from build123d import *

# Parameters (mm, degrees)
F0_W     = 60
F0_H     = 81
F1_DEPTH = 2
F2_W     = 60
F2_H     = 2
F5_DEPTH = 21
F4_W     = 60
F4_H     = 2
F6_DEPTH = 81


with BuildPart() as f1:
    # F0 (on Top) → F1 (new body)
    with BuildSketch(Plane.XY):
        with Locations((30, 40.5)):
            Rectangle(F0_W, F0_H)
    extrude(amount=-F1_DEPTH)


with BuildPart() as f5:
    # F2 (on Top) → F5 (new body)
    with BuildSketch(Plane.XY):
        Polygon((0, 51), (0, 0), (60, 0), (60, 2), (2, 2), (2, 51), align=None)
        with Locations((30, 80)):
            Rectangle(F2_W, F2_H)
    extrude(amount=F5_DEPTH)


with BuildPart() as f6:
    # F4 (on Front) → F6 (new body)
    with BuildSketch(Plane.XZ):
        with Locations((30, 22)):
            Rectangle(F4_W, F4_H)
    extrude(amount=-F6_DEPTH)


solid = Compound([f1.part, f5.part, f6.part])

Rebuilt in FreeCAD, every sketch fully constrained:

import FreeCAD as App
import Part
import Sketcher
from FreeCAD import Vector


def add_polygon(sketch, points):
    """Adds a closed chain of lines whose ends are joined by coincident constraints."""
    first, n = sketch.GeometryCount, len(points)
    for a, b in zip(points, points[1:] + points[:1]):
        sketch.addGeometry(Part.LineSegment(App.Vector(*a, 0), App.Vector(*b, 0)), False)
    for i in range(n):
        sketch.addConstraint(Sketcher.Constraint("Coincident", first + i, 2, first + (i + 1) % n, 1))

doc = App.newDocument("Part")
body = doc.addObject("PartDesign::Body", "Body")

sketch1 = body.newObject("Sketcher::SketchObject", "Sketch")
sketch1.AttachmentSupport = (doc.getObject("XY_Plane"), [""])
sketch1.MapMode = "FlatFace"
add_polygon(sketch1, [(0, 81), (0, 0), (60, 0), (60, 81)])
sketch1.addConstraint([
    Sketcher.Constraint("Vertical", 0),
    Sketcher.Constraint("Horizontal", 1),
    Sketcher.Constraint("Vertical", 2),
    Sketcher.Constraint("Horizontal", 3),
    Sketcher.Constraint("Coincident", 0, 2, -1, 1),
    Sketcher.Constraint("DistanceX", 1, 1, 1, 2, 60.0),
    Sketcher.Constraint("DistanceY", 0, 2, 0, 1, 81.0),
])
pad1 = body.newObject("PartDesign::Pad", "Pad")
pad1.Profile = sketch1
pad1.Length = 2
pad1.Reversed = True
body2 = doc.addObject("PartDesign::Body", "Body001")
body2.AllowCompound = True

sketch2 = body2.newObject("Sketcher::SketchObject", "Sketch001")
sketch2.AttachmentSupport = (doc.getObject("XY_Plane001"), [""])
sketch2.MapMode = "FlatFace"
add_polygon(sketch2, [(0, 51), (0, 0), (60, 0), (60, 2), (2, 2), (2, 51)])
add_polygon(sketch2, [(0, 81), (0, 79), (60, 79), (60, 81)])
sketch2.addConstraint([
    Sketcher.Constraint("Vertical", 0),
    Sketcher.Constraint("Horizontal", 1),
    Sketcher.Constraint("Vertical", 2),
    Sketcher.Constraint("Horizontal", 3),
    Sketcher.Constraint("Vertical", 4),
    Sketcher.Constraint("Horizontal", 5),
    Sketcher.Constraint("Vertical", 6),
    Sketcher.Constraint("Horizontal", 7),
    Sketcher.Constraint("Vertical", 8),
    Sketcher.Constraint("Horizontal", 9),
    Sketcher.Constraint("Coincident", 0, 2, -1, 1),
    Sketcher.Constraint("PointOnObject", 6, 2, -2),
    Sketcher.Constraint("Vertical", 2, 2, 7, 2),
    Sketcher.Constraint("Equal", 5, 2),
    Sketcher.Constraint("Equal", 2, 6),
    Sketcher.Constraint("DistanceX", 1, 1, 1, 2, 60.0),
    Sketcher.Constraint("DistanceX", 3, 2, 3, 1, 58.0),
    Sketcher.Constraint("DistanceY", 0, 2, 0, 1, 51.0),
    Sketcher.Constraint("DistanceY", -1, 1, 6, 2, 79.0),
])
pad2 = body2.newObject("PartDesign::Pad", "Pad001")
pad2.Profile = sketch2
pad2.Length = 21
body3 = doc.addObject("PartDesign::Body", "Body002")

sketch3 = body3.newObject("Sketcher::SketchObject", "Sketch002")
sketch3.AttachmentSupport = (doc.getObject("XZ_Plane002"), [""])
sketch3.MapMode = "FlatFace"
add_polygon(sketch3, [(0, 23), (0, 21), (60, 21), (60, 23)])
sketch3.addConstraint([
    Sketcher.Constraint("Vertical", 0),
    Sketcher.Constraint("Horizontal", 1),
    Sketcher.Constraint("Vertical", 2),
    Sketcher.Constraint("Horizontal", 3),
    Sketcher.Constraint("PointOnObject", 0, 2, -2),
    Sketcher.Constraint("DistanceX", 1, 1, 1, 2, 60.0),
    Sketcher.Constraint("DistanceY", 0, 2, 0, 1, 2.0),
    Sketcher.Constraint("DistanceY", -1, 1, 0, 2, 21.0),
])
pad3 = body3.newObject("PartDesign::Pad", "Pad002")
pad3.Profile = sketch3
pad3.Length = 81
pad3.Reversed = True

doc.recompute()
